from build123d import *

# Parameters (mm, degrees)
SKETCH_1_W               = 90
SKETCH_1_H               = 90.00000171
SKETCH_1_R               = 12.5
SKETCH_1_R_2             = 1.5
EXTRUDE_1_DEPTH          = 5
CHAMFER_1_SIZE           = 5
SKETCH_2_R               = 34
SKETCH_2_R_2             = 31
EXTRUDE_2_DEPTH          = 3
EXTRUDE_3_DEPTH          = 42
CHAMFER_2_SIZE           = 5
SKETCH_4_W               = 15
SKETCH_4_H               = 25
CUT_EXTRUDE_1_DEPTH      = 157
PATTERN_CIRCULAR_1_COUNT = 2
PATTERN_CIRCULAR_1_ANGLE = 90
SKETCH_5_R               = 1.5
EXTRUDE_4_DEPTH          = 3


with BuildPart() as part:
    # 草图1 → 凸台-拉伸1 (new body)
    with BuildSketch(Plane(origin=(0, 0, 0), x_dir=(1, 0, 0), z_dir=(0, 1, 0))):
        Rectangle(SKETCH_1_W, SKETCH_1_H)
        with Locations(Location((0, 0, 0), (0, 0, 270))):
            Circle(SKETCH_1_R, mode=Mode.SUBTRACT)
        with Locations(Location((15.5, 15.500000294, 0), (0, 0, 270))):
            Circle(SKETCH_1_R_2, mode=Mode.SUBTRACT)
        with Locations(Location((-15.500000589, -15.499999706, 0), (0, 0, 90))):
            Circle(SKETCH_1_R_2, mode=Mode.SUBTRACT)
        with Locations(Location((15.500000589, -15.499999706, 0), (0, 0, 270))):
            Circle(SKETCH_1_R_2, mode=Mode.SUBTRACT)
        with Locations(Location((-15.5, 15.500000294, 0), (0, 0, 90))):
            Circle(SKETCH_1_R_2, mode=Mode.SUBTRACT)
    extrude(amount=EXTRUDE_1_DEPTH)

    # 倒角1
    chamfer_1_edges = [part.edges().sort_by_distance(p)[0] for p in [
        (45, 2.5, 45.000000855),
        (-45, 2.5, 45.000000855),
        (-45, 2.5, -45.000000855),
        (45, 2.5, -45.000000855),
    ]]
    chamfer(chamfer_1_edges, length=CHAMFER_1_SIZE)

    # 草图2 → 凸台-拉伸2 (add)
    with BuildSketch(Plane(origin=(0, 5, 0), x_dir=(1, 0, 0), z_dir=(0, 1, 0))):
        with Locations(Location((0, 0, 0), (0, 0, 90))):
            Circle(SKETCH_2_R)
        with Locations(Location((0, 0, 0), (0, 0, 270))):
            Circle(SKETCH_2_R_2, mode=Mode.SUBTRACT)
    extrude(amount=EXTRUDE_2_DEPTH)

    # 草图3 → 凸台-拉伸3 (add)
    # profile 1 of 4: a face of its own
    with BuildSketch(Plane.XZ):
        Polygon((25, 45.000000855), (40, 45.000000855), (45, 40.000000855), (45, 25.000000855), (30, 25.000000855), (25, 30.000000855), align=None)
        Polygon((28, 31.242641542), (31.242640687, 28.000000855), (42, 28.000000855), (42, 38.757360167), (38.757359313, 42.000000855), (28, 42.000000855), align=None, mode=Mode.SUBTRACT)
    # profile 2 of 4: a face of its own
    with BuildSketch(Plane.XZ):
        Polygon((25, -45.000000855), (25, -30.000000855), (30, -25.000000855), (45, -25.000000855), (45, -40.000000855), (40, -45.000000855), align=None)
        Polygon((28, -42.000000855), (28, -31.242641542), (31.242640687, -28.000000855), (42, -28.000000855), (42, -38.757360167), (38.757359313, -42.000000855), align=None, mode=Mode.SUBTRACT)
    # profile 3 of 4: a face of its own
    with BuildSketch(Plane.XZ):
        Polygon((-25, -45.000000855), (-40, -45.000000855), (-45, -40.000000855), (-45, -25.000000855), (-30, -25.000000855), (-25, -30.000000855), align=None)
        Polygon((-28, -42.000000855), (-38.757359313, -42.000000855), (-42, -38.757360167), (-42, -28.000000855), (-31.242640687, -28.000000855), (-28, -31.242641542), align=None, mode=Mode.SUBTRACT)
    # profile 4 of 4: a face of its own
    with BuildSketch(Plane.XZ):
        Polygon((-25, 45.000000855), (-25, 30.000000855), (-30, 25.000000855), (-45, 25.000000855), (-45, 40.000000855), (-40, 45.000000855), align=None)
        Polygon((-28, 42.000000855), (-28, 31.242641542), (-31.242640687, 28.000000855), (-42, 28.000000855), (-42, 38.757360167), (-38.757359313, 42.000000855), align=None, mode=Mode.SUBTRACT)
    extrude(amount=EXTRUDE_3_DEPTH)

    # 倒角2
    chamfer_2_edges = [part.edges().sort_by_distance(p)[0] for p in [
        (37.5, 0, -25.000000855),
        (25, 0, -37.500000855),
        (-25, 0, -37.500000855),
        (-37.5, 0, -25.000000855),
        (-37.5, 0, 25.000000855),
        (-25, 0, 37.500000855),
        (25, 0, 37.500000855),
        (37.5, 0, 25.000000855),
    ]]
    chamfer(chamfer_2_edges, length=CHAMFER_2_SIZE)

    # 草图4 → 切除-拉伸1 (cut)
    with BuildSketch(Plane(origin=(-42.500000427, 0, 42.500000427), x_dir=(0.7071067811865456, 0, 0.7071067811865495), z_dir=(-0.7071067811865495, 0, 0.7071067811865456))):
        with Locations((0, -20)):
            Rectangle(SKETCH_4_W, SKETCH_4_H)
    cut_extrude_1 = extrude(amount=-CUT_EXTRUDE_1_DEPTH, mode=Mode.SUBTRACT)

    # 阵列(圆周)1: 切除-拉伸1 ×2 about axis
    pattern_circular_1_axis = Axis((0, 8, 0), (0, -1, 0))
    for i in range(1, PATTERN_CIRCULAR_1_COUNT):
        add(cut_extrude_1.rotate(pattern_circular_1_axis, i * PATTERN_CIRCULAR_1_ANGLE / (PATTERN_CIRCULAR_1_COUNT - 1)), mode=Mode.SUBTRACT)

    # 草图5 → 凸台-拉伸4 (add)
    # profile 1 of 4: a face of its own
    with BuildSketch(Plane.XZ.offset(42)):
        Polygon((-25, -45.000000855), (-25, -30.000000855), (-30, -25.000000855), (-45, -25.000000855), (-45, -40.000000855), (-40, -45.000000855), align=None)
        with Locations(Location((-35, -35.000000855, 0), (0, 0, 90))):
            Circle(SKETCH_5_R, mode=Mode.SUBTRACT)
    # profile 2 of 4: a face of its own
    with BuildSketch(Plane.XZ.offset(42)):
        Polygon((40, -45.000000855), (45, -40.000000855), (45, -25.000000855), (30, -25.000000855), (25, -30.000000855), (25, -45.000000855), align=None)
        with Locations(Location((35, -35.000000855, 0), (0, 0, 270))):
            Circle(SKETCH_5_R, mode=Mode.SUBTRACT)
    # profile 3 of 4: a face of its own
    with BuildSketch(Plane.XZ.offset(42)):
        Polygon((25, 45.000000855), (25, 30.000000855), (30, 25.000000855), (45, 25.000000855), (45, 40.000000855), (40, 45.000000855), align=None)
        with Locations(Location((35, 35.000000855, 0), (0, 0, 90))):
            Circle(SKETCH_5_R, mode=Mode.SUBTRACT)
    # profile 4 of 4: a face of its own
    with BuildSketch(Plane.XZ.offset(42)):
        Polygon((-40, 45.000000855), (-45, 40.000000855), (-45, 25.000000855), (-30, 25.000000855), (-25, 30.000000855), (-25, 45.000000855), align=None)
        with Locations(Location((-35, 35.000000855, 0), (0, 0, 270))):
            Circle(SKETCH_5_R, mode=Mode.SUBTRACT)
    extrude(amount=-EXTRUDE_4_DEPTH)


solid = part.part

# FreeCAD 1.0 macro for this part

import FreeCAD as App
import Part
import Sketcher
from FreeCAD import Vector


def edges_at(feature, points):
    """Names of the edges that pass closest to the given points."""
    edges = feature.Shape.Edges
    near = lambda p: min(range(len(edges)), key=lambda i: edges[i].distToShape(Part.Vertex(*p))[0])
    return sorted({f"Edge{near(p) + 1}" for p in points})


def add_polygon(sketch, points):
    """Adds a closed chain of lines whose ends are joined by coincident constraints."""
    first, n = sketch.GeometryCount, len(points)
    for a, b in zip(points, points[1:] + points[:1]):
        sketch.addGeometry(Part.LineSegment(App.Vector(*a, 0), App.Vector(*b, 0)), False)
    for i in range(n):
        sketch.addConstraint(Sketcher.Constraint("Coincident", first + i, 2, first + (i + 1) % n, 1))

doc = App.newDocument("Part")
params = doc.addObject("Spreadsheet::Sheet", "Params")
for row, (alias, value) in enumerate([
    ("sketch1_diameter", "3 mm"),
    ("sketch1_diameter2", "25 mm"),
    ("sketch1_width", "90 mm"),
    ("pad1_length", "5 mm"),
    ("chamfer_size", "5 mm"),
    ("sketch2_diameter", "68 mm"),
    ("sketch2_diameter2", "62 mm"),
    ("pad2_length", "3 mm"),
    ("sketch3_width", "15 mm"),
    ("pad3_length", "42 mm"),
    ("chamfer2_size", "5 mm"),
    ("sketch4_width", "15 mm"),
    ("sketch4_height", "25 mm"),
    ("pocket1_length", "157 mm"),
    ("sketch5_diameter", "3 mm"),
    ("sketch5_width", "15 mm"),
    ("pad4_length", "3 mm"),
], start=1):
    params.set(f"A{row}", alias)
    params.set(f"B{row}", "=" + value)
    params.setAlias(f"B{row}", alias)

body = doc.addObject("PartDesign::Body", "Body")

# Sketch on XZ plane
sketch1 = body.newObject("Sketcher::SketchObject", "Sketch")
sketch1.AttachmentSupport = (doc.getObject("XZ_Plane"), [""])
sketch1.MapMode = "FlatFace"
add_polygon(sketch1, [(-45, -45), (-45, 45), (45, 45), (45, -45)])  # lines 0-3
sketch1.addGeometry(Part.Circle(Vector(-15.5, 15.5, 0), Vector(0, 0, 1), 1.5), False)  # 4
sketch1.addGeometry(Part.Circle(Vector(15.5, 15.5, 0), Vector(0, 0, 1), 1.5), False)  # 5
sketch1.addGeometry(Part.Circle(Vector(0, 0, 0), Vector(0, 0, 1), 12.5), False)  # 6
sketch1.addGeometry(Part.Circle(Vector(-15.5, -15.5, 0), Vector(0, 0, 1), 1.5), False)  # 7
sketch1.addGeometry(Part.Circle(Vector(15.5, -15.5, 0), Vector(0, 0, 1), 1.5), False)  # 8
sketch1.addConstraint(Sketcher.Constraint("Vertical", 0))
sketch1.addConstraint(Sketcher.Constraint("Horizontal", 1))
sketch1.addConstraint(Sketcher.Constraint("Vertical", 2))
sketch1.addConstraint(Sketcher.Constraint("Horizontal", 3))
sketch1.addConstraint(Sketcher.Constraint("Coincident", 6, 3, -1, 1))
sketch1.addConstraint(Sketcher.Constraint("Equal", 4, 5))
sketch1.addConstraint(Sketcher.Constraint("Equal", 5, 7))
sketch1.addConstraint(Sketcher.Constraint("Equal", 7, 8))
sketch1.addConstraint(Sketcher.Constraint("Symmetric", 5, 3, 7, 3, -1, 1))
sketch1.addConstraint(Sketcher.Constraint("Symmetric", 4, 3, 8, 3, -1, 1))
sketch1.addConstraint(Sketcher.Constraint("Symmetric", 0, 2, 2, 2, -1, 1))
sketch1.addConstraint(Sketcher.Constraint("Symmetric", 4, 3, 5, 3, -2))
sketch1.addConstraint(Sketcher.Constraint("Equal", 3, 0))
sketch1.addConstraint(Sketcher.Constraint("Diameter", 4, 3.0))
sketch1.addConstraint(Sketcher.Constraint("Diameter", 6, 25.0))
sketch1.addConstraint(Sketcher.Constraint("DistanceX", 1, 1, 1, 2, 90.0))
sketch1.addConstraint(Sketcher.Constraint("DistanceX", 4, 3, 5, 3, 31.000001))
sketch1.addConstraint(Sketcher.Constraint("DistanceY", 7, 3, 4, 3, 31.0))
sketch1.setExpression("Constraints[17]", "Params.sketch1_diameter")
sketch1.setExpression("Constraints[18]", "Params.sketch1_diameter2")
sketch1.setExpression("Constraints[19]", "Params.sketch1_width")
pad1 = body.newObject("PartDesign::Pad", "Pad")
pad1.Profile = sketch1
pad1.setExpression("Length", "Params.pad1_length")
pad1.Reversed = True
doc.recompute()

chamfer = body.newObject("PartDesign::Chamfer", "Chamfer")
chamfer.Base = (pad1, edges_at(pad1, [
    (45, 2.5, 45),
    (-45, 2.5, 45),
    (-45, 2.5, -45),
    (45, 2.5, -45),
]))
chamfer.setExpression("Size", "Params.chamfer_size")

# Sketch on XZ plane
sketch2 = body.newObject("Sketcher::SketchObject", "Sketch001")
sketch2.AttachmentSupport = (doc.getObject("XZ_Plane"), [""])
sketch2.MapMode = "FlatFace"
sketch2.AttachmentOffset = App.Placement(Vector(0, 0, -5), App.Rotation())
sketch2.addGeometry(Part.Circle(Vector(0, 0, 0), Vector(0, 0, 1), 34), False)
sketch2.addGeometry(Part.Circle(Vector(0, 0, 0), Vector(0, 0, 1), 31), False)
sketch2.addConstraint(Sketcher.Constraint("Coincident", 0, 3, -1, 1))
sketch2.addConstraint(Sketcher.Constraint("Coincident", 1, 3, -1, 1))
sketch2.addConstraint(Sketcher.Constraint("Diameter", 0, 68.0))
sketch2.addConstraint(Sketcher.Constraint("Diameter", 1, 62.0))
sketch2.setExpression("Constraints[2]", "Params.sketch2_diameter")
sketch2.setExpression("Constraints[3]", "Params.sketch2_diameter2")
pad2 = body.newObject("PartDesign::Pad", "Pad001")
pad2.Profile = sketch2
pad2.setExpression("Length", "Params.pad2_length")
pad2.Reversed = True

# Sketch on XZ plane
sketch3 = body.newObject("Sketcher::SketchObject", "Sketch002")
sketch3.AttachmentSupport = (doc.getObject("XZ_Plane"), [""])
sketch3.MapMode = "FlatFace"
add_polygon(sketch3, [(40, 45), (25, 45), (25, 30), (30, 25), (45, 25), (45, 40)])  # lines 0-5
add_polygon(sketch3, [(28, 31.2), (28, 42), (38.8, 42), (42, 38.8), (42, 28), (31.2, 28)])  # lines 6-11
add_polygon(sketch3, [(25, -30), (25, -45), (40, -45), (45, -40), (45, -25), (30, -25)])  # lines 12-17
add_polygon(sketch3, [(28, -42), (28, -31.2), (31.2, -28), (42, -28), (42, -38.8), (38.8, -42)])  # lines 18-23
add_polygon(sketch3, [(-40, -45), (-25, -45), (-25, -30), (-30, -25), (-45, -25), (-45, -40)])  # lines 24-29
add_polygon(sketch3, [(-28, -42), (-38.8, -42), (-42, -38.8), (-42, -28), (-31.2, -28), (-28, -31.2)])  # lines 30-35
add_polygon(sketch3, [(-25, 30), (-25, 45), (-40, 45), (-45, 40), (-45, 25), (-30, 25)])  # lines 36-41
add_polygon(sketch3, [(-28, 42), (-28, 31.2), (-31.2, 28), (-42, 28), (-42, 38.8), (-38.8, 42)])  # lines 42-47
sketch3.addConstraint(Sketcher.Constraint("Horizontal", 0))
sketch3.addConstraint(Sketcher.Constraint("Vertical", 1))
sketch3.addConstraint(Sketcher.Constraint("Horizontal", 3))
sketch3.addConstraint(Sketcher.Constraint("Vertical", 4))
sketch3.addConstraint(Sketcher.Constraint("Vertical", 6))
sketch3.addConstraint(Sketcher.Constraint("Horizontal", 7))
sketch3.addConstraint(Sketcher.Constraint("Vertical", 9))
sketch3.addConstraint(Sketcher.Constraint("Horizontal", 10))
sketch3.addConstraint(Sketcher.Constraint("Vertical", 12))
sketch3.addConstraint(Sketcher.Constraint("Horizontal", 13))
sketch3.addConstraint(Sketcher.Constraint("Vertical", 15))
sketch3.addConstraint(Sketcher.Constraint("Horizontal", 16))
sketch3.addConstraint(Sketcher.Constraint("Vertical", 18))
sketch3.addConstraint(Sketcher.Constraint("Horizontal", 20))
sketch3.addConstraint(Sketcher.Constraint("Vertical", 21))
sketch3.addConstraint(Sketcher.Constraint("Horizontal", 23))
sketch3.addConstraint(Sketcher.Constraint("Horizontal", 24))
sketch3.addConstraint(Sketcher.Constraint("Vertical", 25))
sketch3.addConstraint(Sketcher.Constraint("Horizontal", 27))
sketch3.addConstraint(Sketcher.Constraint("Vertical", 28))
sketch3.addConstraint(Sketcher.Constraint("Horizontal", 30))
sketch3.addConstraint(Sketcher.Constraint("Vertical", 32))
sketch3.addConstraint(Sketcher.Constraint("Horizontal", 33))
sketch3.addConstraint(Sketcher.Constraint("Vertical", 35))
sketch3.addConstraint(Sketcher.Constraint("Vertical", 36))
sketch3.addConstraint(Sketcher.Constraint("Horizontal", 37))
sketch3.addConstraint(Sketcher.Constraint("Vertical", 39))
sketch3.addConstraint(Sketcher.Constraint("Horizontal", 40))
sketch3.addConstraint(Sketcher.Constraint("Vertical", 42))
sketch3.addConstraint(Sketcher.Constraint("Horizontal", 44))
sketch3.addConstraint(Sketcher.Constraint("Vertical", 45))
sketch3.addConstraint(Sketcher.Constraint("Horizontal", 47))
sketch3.addConstraint(Sketcher.Constraint("Symmetric", 0, 2, 24, 2, -1, 1))
sketch3.addConstraint(Sketcher.Constraint("Symmetric", 2, 2, 26, 2, -1, 1))
sketch3.addConstraint(Sketcher.Constraint("Symmetric", 4, 2, 28, 2, -1, 1))
sketch3.addConstraint(Sketcher.Constraint("Symmetric", 7, 2, 30, 2, -1, 1))
sketch3.addConstraint(Sketcher.Constraint("Symmetric", 8, 2, 31, 2, -1, 1))
sketch3.addConstraint(Sketcher.Constraint("Symmetric", 10, 2, 33, 2, -1, 1))
sketch3.addConstraint(Sketcher.Constraint("Symmetric", 11, 2, 34, 2, -1, 1))
sketch3.addConstraint(Sketcher.Constraint("Symmetric", 12, 2, 36, 2, -1, 1))
sketch3.addConstraint(Sketcher.Constraint("Symmetric", 14, 2, 38, 2, -1, 1))
sketch3.addConstraint(Sketcher.Constraint("Symmetric", 16, 2, 40, 2, -1, 1))
sketch3.addConstraint(Sketcher.Constraint("Symmetric", 18, 2, 42, 2, -1, 1))
sketch3.addConstraint(Sketcher.Constraint("Symmetric", 19, 2, 43, 2, -1, 1))
sketch3.addConstraint(Sketcher.Constraint("Symmetric", 21, 2, 45, 2, -1, 1))
sketch3.addConstraint(Sketcher.Constraint("Symmetric", 22, 2, 46, 2, -1, 1))
sketch3.addConstraint(Sketcher.Constraint("Symmetric", 12, 2, 24, 2, -2))
sketch3.addConstraint(Sketcher.Constraint("Symmetric", 16, 2, 26, 2, -2))
sketch3.addConstraint(Sketcher.Constraint("Symmetric", 14, 2, 28, 2, -2))
sketch3.addConstraint(Sketcher.Constraint("Symmetric", 22, 2, 30, 2, -2))
sketch3.addConstraint(Sketcher.Constraint("Symmetric", 21, 2, 31, 2, -2))
sketch3.addConstraint(Sketcher.Constraint("Symmetric", 19, 2, 33, 2, -2))
sketch3.addConstraint(Sketcher.Constraint("Symmetric", 18, 2, 34, 2, -2))
sketch3.addConstraint(Sketcher.Constraint("Parallel", 2, 5))
sketch3.addConstraint(Sketcher.Constraint("Parallel", 5, 8))
sketch3.addConstraint(Sketcher.Constraint("Parallel", 8, 11))
sketch3.addConstraint(Sketcher.Constraint("Perpendicular", 11, 14))
sketch3.addConstraint(Sketcher.Constraint("Parallel", 14, 17))
sketch3.addConstraint(Sketcher.Constraint("Parallel", 17, 19))
sketch3.addConstraint(Sketcher.Constraint("Perpendicular", 22, 26))
sketch3.addConstraint(Sketcher.Constraint("Parallel", 26, 29))
sketch3.addConstraint(Sketcher.Constraint("Perpendicular", 34, 38))
sketch3.addConstraint(Sketcher.Constraint("Parallel", 38, 41))
sketch3.addConstraint(Sketcher.Constraint("Equal", 0, 3))
sketch3.addConstraint(Sketcher.Constraint("Equal", 7, 10))
sketch3.addConstraint(Sketcher.Constraint("Equal", 40, 1))
sketch3.addConstraint(Sketcher.Constraint("Equal", 47, 6))
sketch3.addConstraint(Sketcher.Constraint("DistanceX", 0, 2, 0, 1, 15.0))
sketch3.addConstraint(Sketcher.Constraint("DistanceX", -1, 1, 0, 2, 25.0))
sketch3.addConstraint(Sketcher.Constraint("DistanceY", -1, 1, 0, 2, 45.000001))
sketch3.addConstraint(Sketcher.Constraint("DistanceX", -1, 1, 2, 2, 30.0))
sketch3.addConstraint(Sketcher.Constraint("DistanceX", -1, 1, 6, 2, 28.0))
sketch3.addConstraint(Sketcher.Constraint("DistanceY", -1, 1, 6, 2, 42.000001))
sketch3.addConstraint(Sketcher.Constraint("DistanceX", -1, 1, 8, 2, 42.0))
sketch3.addConstraint(Sketcher.Constraint("DistanceX", 7, 1, 7, 2, 10.757359))
sketch3.setExpression("Constraints[115]", "Params.sketch3_width")
pad3 = body.newObject("PartDesign::Pad", "Pad002")
pad3.Profile = sketch3
pad3.setExpression("Length", "Params.pad3_length")
doc.recompute()

chamfer2 = body.newObject("PartDesign::Chamfer", "Chamfer001")
chamfer2.Base = (pad3, edges_at(pad3, [
    (37.5, 0, -25),
    (25, 0, -37.5),
    (-25, 0, -37.5),
    (-37.5, 0, -25),
    (-37.5, 0, 25),
    (-25, 0, 37.5),
    (25, 0, 37.5),
    (37.5, 0, 25),
]))
chamfer2.setExpression("Size", "Params.chamfer2_size")

# Sketch on an angled plane
sketch4 = body.newObject("Sketcher::SketchObject", "Sketch003")
sketch4.Placement = App.Placement(Vector(-42.5, 0, 42.5), App.Rotation(Vector(0.707106781, 0, 0.707106781), Vector(0, 0.999999999, 0), Vector(-0.707106781, 0, 0.707106781), "ZXY"))
add_polygon(sketch4, [(-7, -7), (-7, -32), (7, -32), (7, -7)])  # lines 0-3
sketch4.addConstraint(Sketcher.Constraint("Vertical", 0))
sketch4.addConstraint(Sketcher.Constraint("Horizontal", 1))
sketch4.addConstraint(Sketcher.Constraint("Vertical", 2))
sketch4.addConstraint(Sketcher.Constraint("Horizontal", 3))
sketch4.addConstraint(Sketcher.Constraint("DistanceX", 1, 1, 1, 2, 15.0))
sketch4.addConstraint(Sketcher.Constraint("DistanceY", 0, 2, 0, 1, 25.0))
sketch4.addConstraint(Sketcher.Constraint("DistanceX", 0, 2, -1, 1, 7.5))
sketch4.addConstraint(Sketcher.Constraint("DistanceY", 0, 2, -1, 1, 32.5))
sketch4.setExpression("Constraints[8]", "Params.sketch4_width")
sketch4.setExpression("Constraints[9]", "Params.sketch4_height")
pocket1 = body.newObject("PartDesign::Pocket", "Pocket")
pocket1.Profile = sketch4
pocket1.setExpression("Length", "Params.pocket1_length")
doc.recompute()

polarpattern = body.newObject("PartDesign::PolarPattern", "PolarPattern")
polarpattern.Originals = [pocket1]
polarpattern.Axis = (doc.getObject("Y_Axis"), [""])
polarpattern.Angle = 90
polarpattern.Occurrences = 2
polarpattern.Reversed = True
body.Tip = polarpattern

# Sketch on XZ plane
sketch5 = body.newObject("Sketcher::SketchObject", "Sketch004")
sketch5.AttachmentSupport = (doc.getObject("XZ_Plane"), [""])
sketch5.MapMode = "FlatFace"
sketch5.AttachmentOffset = App.Placement(Vector(0, 0, 42), App.Rotation())
add_polygon(sketch5, [(-25, -45), (-25, -30), (-30, -25), (-45, -25), (-45, -40), (-40, -45)])  # lines 0-5
sketch5.addGeometry(Part.Circle(Vector(-35, -35, 0), Vector(0, 0, 1), 1.5), False)  # 6
add_polygon(sketch5, [(40, -45), (45, -40), (45, -25), (30, -25), (25, -30), (25, -45)])  # lines 7-12
sketch5.addGeometry(Part.Circle(Vector(35, -35, 0), Vector(0, 0, 1), 1.5), False)  # 13
add_polygon(sketch5, [(25, 45), (25, 30), (30, 25), (45, 25), (45, 40), (40, 45)])  # lines 14-19
sketch5.addGeometry(Part.Circle(Vector(35, 35, 0), Vector(0, 0, 1), 1.5), False)  # 20
add_polygon(sketch5, [(-40, 45), (-45, 40), (-45, 25), (-30, 25), (-25, 30), (-25, 45)])  # lines 21-26
sketch5.addGeometry(Part.Circle(Vector(-35, 35, 0), Vector(0, 0, 1), 1.5), False)  # 27
sketch5.addConstraint(Sketcher.Constraint("Vertical", 0))
sketch5.addConstraint(Sketcher.Constraint("Horizontal", 2))
sketch5.addConstraint(Sketcher.Constraint("Vertical", 3))
sketch5.addConstraint(Sketcher.Constraint("Horizontal", 5))
sketch5.addConstraint(Sketcher.Constraint("Vertical", 8))
sketch5.addConstraint(Sketcher.Constraint("Horizontal", 9))
sketch5.addConstraint(Sketcher.Constraint("Vertical", 11))
sketch5.addConstraint(Sketcher.Constraint("Horizontal", 12))
sketch5.addConstraint(Sketcher.Constraint("Vertical", 14))
sketch5.addConstraint(Sketcher.Constraint("Horizontal", 16))
sketch5.addConstraint(Sketcher.Constraint("Vertical", 17))
sketch5.addConstraint(Sketcher.Constraint("Horizontal", 19))
sketch5.addConstraint(Sketcher.Constraint("Vertical", 22))
sketch5.addConstraint(Sketcher.Constraint("Horizontal", 23))
sketch5.addConstraint(Sketcher.Constraint("Vertical", 25))
sketch5.addConstraint(Sketcher.Constraint("Horizontal", 26))
sketch5.addConstraint(Sketcher.Constraint("Equal", 6, 13))
sketch5.addConstraint(Sketcher.Constraint("Equal", 13, 20))
sketch5.addConstraint(Sketcher.Constraint("Equal", 20, 27))
sketch5.addConstraint(Sketcher.Constraint("Symmetric", 6, 3, 20, 3, -1, 1))
sketch5.addConstraint(Sketcher.Constraint("Symmetric", 13, 3, 27, 3, -1, 1))
sketch5.addConstraint(Sketcher.Constraint("Symmetric", 0, 2, 14, 2, -1, 1))
sketch5.addConstraint(Sketcher.Constraint("Symmetric", 1, 2, 15, 2, -1, 1))
sketch5.addConstraint(Sketcher.Constraint("Symmetric", 3, 2, 17, 2, -1, 1))
sketch5.addConstraint(Sketcher.Constraint("Symmetric", 4, 2, 18, 2, -1, 1))
sketch5.addConstraint(Sketcher.Constraint("Symmetric", 7, 2, 21, 2, -1, 1))
sketch5.addConstraint(Sketcher.Constraint("Symmetric", 9, 2, 23, 2, -1, 1))
sketch5.addConstraint(Sketcher.Constraint("Symmetric", 10, 2, 24, 2, -1, 1))
sketch5.addConstraint(Sketcher.Constraint("Symmetric", 12, 2, 26, 2, -1, 1))
sketch5.addConstraint(Sketcher.Constraint("Symmetric", 6, 3, 13, 3, -2))
sketch5.addConstraint(Sketcher.Constraint("Symmetric", 3, 2, 7, 2, -2))
sketch5.addConstraint(Sketcher.Constraint("Symmetric", 1, 2, 9, 2, -2))
sketch5.addConstraint(Sketcher.Constraint("Symmetric", 0, 2, 10, 2, -2))
sketch5.addConstraint(Sketcher.Constraint("Symmetric", 4, 2, 12, 2, -2))
sketch5.addConstraint(Sketcher.Constraint("Parallel", 1, 4))
sketch5.addConstraint(Sketcher.Constraint("Perpendicular", 4, 7))
sketch5.addConstraint(Sketcher.Constraint("Equal", 2, 5))
sketch5.addConstraint(Sketcher.Constraint("Equal", 26, 0))
sketch5.addConstraint(Sketcher.Constraint("Diameter", 6, 3.0))
sketch5.addConstraint(Sketcher.Constraint("DistanceX", 2, 2, 2, 1, 15.0))
sketch5.addConstraint(Sketcher.Constraint("DistanceX", 6, 3, -1, 1, 35.0))
sketch5.addConstraint(Sketcher.Constraint("DistanceY", 6, 3, -1, 1, 35.000001))
sketch5.addConstraint(Sketcher.Constraint("DistanceX", 0, 2, -1, 1, 25.0))
sketch5.addConstraint(Sketcher.Constraint("DistanceY", 0, 2, -1, 1, 30.000001))
sketch5.addConstraint(Sketcher.Constraint("DistanceX", 1, 2, -1, 1, 30.0))
sketch5.setExpression("Constraints[62]", "Params.sketch5_diameter")
sketch5.setExpression("Constraints[63]", "Params.sketch5_width")
pad4 = body.newObject("PartDesign::Pad", "Pad003")
pad4.Profile = sketch5
pad4.setExpression("Length", "Params.pad4_length")
pad4.Reversed = True

doc.recompute()
